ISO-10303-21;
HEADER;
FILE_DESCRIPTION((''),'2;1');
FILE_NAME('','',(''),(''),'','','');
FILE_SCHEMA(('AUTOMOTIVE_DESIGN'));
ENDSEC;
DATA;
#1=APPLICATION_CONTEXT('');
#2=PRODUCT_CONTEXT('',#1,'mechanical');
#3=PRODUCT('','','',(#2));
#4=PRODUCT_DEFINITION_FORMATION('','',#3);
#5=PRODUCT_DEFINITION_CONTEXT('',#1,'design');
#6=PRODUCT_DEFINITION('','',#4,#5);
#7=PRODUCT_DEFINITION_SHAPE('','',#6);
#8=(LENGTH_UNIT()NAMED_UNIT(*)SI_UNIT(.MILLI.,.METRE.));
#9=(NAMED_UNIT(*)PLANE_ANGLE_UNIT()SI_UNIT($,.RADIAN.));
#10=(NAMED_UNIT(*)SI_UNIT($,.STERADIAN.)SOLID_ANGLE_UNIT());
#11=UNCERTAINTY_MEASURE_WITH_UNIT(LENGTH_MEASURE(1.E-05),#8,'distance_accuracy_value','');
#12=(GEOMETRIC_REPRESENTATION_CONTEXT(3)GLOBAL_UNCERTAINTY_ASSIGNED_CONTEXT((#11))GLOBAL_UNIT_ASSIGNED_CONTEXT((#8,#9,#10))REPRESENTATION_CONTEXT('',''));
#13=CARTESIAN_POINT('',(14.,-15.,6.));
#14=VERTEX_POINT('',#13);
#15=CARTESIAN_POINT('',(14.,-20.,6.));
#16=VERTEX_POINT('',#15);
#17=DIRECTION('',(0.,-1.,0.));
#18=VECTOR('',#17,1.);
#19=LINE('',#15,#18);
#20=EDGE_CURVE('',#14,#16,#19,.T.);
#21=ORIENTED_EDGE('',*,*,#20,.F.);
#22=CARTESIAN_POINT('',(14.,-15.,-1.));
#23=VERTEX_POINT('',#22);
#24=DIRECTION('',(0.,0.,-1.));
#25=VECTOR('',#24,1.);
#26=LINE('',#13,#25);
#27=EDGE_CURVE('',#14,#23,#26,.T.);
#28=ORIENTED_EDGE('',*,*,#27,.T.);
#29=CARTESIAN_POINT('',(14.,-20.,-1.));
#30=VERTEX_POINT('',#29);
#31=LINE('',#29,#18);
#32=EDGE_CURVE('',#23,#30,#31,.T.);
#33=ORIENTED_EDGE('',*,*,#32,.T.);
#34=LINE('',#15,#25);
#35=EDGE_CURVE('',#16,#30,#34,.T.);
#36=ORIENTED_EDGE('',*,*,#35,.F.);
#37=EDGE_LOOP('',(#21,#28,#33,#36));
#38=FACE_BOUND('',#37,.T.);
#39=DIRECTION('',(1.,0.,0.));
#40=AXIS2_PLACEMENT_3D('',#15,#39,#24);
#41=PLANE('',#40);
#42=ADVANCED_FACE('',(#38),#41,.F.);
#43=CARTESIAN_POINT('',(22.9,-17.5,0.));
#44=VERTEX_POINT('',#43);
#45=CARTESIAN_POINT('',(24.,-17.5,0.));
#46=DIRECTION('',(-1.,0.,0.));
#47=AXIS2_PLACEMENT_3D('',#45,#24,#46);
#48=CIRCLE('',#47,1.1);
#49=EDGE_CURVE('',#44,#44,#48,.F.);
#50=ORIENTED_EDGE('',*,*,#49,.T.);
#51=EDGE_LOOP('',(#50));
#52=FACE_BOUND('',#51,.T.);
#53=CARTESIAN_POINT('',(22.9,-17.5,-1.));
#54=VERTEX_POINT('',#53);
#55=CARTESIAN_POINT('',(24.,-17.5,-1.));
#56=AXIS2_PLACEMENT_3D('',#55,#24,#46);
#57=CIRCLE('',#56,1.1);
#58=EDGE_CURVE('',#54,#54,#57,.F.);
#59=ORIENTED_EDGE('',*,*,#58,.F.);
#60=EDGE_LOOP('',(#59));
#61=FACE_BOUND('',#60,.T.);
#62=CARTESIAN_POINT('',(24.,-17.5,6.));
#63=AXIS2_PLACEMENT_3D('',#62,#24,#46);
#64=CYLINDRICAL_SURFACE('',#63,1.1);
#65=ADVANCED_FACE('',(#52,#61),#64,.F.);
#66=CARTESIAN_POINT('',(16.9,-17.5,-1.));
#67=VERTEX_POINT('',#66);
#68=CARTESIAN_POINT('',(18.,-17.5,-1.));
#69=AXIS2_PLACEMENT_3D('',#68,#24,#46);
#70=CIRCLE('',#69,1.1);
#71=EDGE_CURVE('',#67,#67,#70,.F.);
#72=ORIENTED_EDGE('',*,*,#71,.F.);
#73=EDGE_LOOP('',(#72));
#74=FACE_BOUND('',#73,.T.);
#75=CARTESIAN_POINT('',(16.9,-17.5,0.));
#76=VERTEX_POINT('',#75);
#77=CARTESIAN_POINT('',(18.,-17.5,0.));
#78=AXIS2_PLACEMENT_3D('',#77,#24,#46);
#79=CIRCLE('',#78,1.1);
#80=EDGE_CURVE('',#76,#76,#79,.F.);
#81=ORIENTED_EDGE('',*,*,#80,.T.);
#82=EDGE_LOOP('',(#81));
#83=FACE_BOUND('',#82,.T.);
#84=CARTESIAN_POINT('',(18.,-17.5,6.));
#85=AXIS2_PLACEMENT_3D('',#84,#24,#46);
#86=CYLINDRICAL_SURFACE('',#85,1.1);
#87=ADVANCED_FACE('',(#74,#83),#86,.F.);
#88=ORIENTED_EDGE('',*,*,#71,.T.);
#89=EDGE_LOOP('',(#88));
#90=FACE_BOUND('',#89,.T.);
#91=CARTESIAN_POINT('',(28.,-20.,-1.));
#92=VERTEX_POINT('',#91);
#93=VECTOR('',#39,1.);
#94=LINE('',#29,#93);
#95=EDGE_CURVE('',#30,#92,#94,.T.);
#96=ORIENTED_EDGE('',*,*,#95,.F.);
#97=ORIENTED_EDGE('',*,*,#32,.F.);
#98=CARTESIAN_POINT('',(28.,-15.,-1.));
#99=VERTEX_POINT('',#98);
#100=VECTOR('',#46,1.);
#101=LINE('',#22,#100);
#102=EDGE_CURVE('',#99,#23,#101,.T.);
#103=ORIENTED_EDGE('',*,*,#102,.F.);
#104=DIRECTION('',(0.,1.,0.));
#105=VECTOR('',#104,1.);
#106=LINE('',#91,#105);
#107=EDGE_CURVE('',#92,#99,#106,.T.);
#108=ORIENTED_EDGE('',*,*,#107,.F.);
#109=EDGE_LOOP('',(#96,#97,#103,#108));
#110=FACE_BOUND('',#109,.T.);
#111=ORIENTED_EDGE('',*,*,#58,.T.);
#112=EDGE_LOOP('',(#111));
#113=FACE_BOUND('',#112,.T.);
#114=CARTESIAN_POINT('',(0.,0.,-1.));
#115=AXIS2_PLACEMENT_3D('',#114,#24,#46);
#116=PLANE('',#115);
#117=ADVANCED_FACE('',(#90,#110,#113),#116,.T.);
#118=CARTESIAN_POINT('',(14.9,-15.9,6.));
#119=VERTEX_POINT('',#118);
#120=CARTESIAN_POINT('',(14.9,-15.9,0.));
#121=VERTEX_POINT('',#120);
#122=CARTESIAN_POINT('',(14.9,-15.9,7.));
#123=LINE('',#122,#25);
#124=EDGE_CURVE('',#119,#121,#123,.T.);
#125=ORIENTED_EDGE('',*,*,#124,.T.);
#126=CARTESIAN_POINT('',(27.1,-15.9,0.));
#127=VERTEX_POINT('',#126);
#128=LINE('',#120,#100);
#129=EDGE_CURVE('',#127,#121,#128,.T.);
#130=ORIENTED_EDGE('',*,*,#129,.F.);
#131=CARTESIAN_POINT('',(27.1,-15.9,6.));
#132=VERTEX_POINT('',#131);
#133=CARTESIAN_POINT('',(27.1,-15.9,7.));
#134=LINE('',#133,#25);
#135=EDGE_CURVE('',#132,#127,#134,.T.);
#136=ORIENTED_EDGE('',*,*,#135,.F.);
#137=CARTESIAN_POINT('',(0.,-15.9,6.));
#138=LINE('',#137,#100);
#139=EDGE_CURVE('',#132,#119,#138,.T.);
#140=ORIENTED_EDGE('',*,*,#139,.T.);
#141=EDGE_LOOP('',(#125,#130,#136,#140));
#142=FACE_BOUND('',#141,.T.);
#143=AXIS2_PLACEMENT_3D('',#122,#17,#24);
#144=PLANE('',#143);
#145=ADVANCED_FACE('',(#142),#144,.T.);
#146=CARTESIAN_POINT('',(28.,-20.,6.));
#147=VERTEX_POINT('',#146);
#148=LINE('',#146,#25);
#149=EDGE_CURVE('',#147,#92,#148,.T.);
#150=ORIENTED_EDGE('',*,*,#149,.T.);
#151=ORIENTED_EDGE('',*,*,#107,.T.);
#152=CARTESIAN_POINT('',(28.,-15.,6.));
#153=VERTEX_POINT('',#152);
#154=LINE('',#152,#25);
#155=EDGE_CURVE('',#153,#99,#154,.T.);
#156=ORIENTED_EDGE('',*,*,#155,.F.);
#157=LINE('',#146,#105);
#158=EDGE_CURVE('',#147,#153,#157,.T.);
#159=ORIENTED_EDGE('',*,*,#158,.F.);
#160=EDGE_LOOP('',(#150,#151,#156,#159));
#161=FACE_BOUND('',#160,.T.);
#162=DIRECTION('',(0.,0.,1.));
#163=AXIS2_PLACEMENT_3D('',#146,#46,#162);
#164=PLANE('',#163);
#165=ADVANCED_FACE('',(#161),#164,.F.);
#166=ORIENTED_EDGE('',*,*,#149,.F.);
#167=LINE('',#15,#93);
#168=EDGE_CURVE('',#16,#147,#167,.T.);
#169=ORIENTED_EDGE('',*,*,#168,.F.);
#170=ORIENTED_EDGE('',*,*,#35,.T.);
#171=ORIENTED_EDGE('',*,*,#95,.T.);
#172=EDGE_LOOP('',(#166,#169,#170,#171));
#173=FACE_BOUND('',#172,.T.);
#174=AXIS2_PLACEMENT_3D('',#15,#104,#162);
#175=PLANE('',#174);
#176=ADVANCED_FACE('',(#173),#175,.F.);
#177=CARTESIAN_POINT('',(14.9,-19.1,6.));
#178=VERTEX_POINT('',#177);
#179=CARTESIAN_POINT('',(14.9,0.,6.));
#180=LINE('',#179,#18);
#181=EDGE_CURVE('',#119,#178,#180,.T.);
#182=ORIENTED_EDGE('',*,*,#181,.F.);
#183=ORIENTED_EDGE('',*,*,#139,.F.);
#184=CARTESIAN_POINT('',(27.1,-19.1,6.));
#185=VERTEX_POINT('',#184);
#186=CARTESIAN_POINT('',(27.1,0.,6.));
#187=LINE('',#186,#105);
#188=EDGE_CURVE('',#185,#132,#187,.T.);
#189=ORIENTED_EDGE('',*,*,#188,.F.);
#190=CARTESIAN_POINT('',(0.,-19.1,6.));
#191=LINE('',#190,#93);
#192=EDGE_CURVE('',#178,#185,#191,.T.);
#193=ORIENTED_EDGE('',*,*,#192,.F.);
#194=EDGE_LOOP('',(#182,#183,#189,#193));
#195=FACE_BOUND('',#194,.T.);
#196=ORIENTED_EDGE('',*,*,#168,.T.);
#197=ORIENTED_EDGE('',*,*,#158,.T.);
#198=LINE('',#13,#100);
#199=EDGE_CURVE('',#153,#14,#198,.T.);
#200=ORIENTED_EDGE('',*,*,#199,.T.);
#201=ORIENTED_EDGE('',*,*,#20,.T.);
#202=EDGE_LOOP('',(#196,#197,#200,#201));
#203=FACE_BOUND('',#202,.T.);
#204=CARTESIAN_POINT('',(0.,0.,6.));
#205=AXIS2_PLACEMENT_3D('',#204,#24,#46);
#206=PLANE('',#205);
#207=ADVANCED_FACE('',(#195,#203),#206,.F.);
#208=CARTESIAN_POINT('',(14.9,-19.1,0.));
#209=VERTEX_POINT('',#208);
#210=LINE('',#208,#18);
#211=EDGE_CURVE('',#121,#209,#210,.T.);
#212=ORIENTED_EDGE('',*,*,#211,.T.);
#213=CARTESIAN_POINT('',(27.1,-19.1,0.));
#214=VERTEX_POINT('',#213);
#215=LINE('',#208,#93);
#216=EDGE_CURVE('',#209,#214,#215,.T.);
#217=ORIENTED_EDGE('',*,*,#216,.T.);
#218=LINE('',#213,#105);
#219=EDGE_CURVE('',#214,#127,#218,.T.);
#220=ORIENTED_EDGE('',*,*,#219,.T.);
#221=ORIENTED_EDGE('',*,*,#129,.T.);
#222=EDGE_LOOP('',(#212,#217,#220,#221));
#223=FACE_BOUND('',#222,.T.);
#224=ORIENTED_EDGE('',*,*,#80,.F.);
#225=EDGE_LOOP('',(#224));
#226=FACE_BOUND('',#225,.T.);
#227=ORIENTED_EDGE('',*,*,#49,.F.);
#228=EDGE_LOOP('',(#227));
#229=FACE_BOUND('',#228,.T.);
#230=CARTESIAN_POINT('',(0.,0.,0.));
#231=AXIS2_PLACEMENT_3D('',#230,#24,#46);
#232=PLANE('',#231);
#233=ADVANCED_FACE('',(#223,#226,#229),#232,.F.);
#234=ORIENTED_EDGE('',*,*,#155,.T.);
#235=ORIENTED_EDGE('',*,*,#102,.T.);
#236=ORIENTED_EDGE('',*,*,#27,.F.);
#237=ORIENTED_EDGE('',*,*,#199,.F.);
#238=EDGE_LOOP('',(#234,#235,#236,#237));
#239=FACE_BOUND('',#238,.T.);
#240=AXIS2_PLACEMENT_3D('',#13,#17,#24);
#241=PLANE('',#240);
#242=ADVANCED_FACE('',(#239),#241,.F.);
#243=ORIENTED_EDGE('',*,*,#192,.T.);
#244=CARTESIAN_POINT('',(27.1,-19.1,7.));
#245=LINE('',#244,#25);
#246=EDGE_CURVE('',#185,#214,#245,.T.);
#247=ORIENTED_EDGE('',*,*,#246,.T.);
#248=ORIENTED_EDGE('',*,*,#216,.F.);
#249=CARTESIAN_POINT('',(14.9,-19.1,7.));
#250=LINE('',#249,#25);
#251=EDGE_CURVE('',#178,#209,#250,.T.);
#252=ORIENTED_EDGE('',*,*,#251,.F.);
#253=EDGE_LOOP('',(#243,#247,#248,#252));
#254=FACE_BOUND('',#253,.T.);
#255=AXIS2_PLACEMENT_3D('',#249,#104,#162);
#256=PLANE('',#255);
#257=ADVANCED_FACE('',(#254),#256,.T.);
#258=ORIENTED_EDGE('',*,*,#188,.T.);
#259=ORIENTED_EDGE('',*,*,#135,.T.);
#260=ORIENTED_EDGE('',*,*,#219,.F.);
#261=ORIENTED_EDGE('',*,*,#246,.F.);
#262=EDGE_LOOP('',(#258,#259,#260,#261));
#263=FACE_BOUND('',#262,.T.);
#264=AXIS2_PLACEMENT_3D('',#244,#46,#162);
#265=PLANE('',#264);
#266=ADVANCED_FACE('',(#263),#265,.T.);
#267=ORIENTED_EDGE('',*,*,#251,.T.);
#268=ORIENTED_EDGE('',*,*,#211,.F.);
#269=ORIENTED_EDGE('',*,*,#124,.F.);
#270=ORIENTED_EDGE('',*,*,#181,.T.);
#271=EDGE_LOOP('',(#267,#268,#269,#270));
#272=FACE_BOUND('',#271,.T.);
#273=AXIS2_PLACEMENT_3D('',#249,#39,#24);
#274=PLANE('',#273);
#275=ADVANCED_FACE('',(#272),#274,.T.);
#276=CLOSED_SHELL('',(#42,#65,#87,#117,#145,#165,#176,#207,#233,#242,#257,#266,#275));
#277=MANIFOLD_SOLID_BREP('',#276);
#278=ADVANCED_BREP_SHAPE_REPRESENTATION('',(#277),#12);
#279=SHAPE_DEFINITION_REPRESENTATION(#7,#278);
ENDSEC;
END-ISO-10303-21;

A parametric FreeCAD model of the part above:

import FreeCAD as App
import Part
import Sketcher

V = App.Vector


def add_polygon(sketch, points):
    """Adds a closed chain of lines whose ends are joined by coincident constraints."""
    first, n = sketch.GeometryCount, len(points)
    for a, b in zip(points, points[1:] + points[:1]):
        sketch.addGeometry(Part.LineSegment(App.Vector(*a, 0), App.Vector(*b, 0)), False)
    for i in range(n):
        sketch.addConstraint(Sketcher.Constraint("Coincident", first + i, 2, first + (i + 1) % n, 1))

doc = App.newDocument("Part")
body = doc.addObject("PartDesign::Body", "Body")

# Sketch on XY plane
sketch1 = body.newObject("Sketcher::SketchObject", "Sketch")
sketch1.AttachmentSupport = (doc.getObject("XY_Plane"), [""])
sketch1.MapMode = "FlatFace"
sketch1.AttachmentOffset = App.Placement(V(0, 0, -1), App.Rotation())
add_polygon(sketch1, [(14, -15), (14, -20), (28, -20), (28, -15)])  # lines 0-3
sketch1.addConstraint(Sketcher.Constraint("Vertical", 0))
sketch1.addConstraint(Sketcher.Constraint("Horizontal", 1))
sketch1.addConstraint(Sketcher.Constraint("Vertical", 2))
sketch1.addConstraint(Sketcher.Constraint("Horizontal", 3))
sketch1.addConstraint(Sketcher.Constraint("DistanceX", 1, 1, 1, 2, 14.0))
sketch1.addConstraint(Sketcher.Constraint("DistanceY", 0, 2, 0, 1, 5.0))
sketch1.addConstraint(Sketcher.Constraint("DistanceX", -1, 1, 0, 2, 14.0))
sketch1.addConstraint(Sketcher.Constraint("DistanceY", 0, 2, -1, 1, 20.0))
pad1 = body.newObject("PartDesign::Pad", "Pad")
pad1.Profile = sketch1
pad1.Length = 7

# Sketch on XY plane
sketch2 = body.newObject("Sketcher::SketchObject", "Sketch001")
sketch2.AttachmentSupport = (doc.getObject("XY_Plane"), [""])
sketch2.MapMode = "FlatFace"
add_polygon(sketch2, [(14.9, -15.9), (14.9, -19.1), (27.1, -19.1), (27.1, -15.9)])  # lines 0-3
sketch2.addConstraint(Sketcher.Constraint("Vertical", 0))
sketch2.addConstraint(Sketcher.Constraint("Horizontal", 1))
sketch2.addConstraint(Sketcher.Constraint("Vertical", 2))
sketch2.addConstraint(Sketcher.Constraint("Horizontal", 3))
sketch2.addConstraint(Sketcher.Constraint("DistanceX", 1, 1, 1, 2, 12.2))
sketch2.addConstraint(Sketcher.Constraint("DistanceY", 0, 2, 0, 1, 3.2))
sketch2.addConstraint(Sketcher.Constraint("DistanceX", -1, 1, 0, 2, 14.9))
sketch2.addConstraint(Sketcher.Constraint("DistanceY", 0, 2, -1, 1, 19.1))
pocket1 = body.newObject("PartDesign::Pocket", "Pocket")
pocket1.Profile = sketch2
pocket1.Length = 7
pocket1.Reversed = True

# Sketch on XY plane
sketch3 = body.newObject("Sketcher::SketchObject", "Sketch002")
sketch3.AttachmentSupport = (doc.getObject("XY_Plane"), [""])
sketch3.MapMode = "FlatFace"
sketch3.AttachmentOffset = App.Placement(V(0, 0, -50), App.Rotation())
sketch3.addGeometry(Part.Circle(V(18, -17.5, 0), V(0, 0, 1), 1.1), False)
sketch3.addGeometry(Part.Circle(V(24, -17.5, 0), V(0, 0, 1), 1.1), False)
sketch3.addConstraint(Sketcher.Constraint("Equal", 0, 1))
sketch3.addConstraint(Sketcher.Constraint("Horizontal", 0, 3, 1, 3))
sketch3.addConstraint(Sketcher.Constraint("Diameter", 0, 2.2))
sketch3.addConstraint(Sketcher.Constraint("DistanceX", -1, 1, 0, 3, 18.0))
sketch3.addConstraint(Sketcher.Constraint("DistanceX", -1, 1, 1, 3, 24.0))
sketch3.addConstraint(Sketcher.Constraint("DistanceY", 0, 3, -1, 1, 17.5))
pocket2 = body.newObject("PartDesign::Pocket", "Pocket001")
pocket2.Profile = sketch3
pocket2.Type = "ThroughAll"
pocket2.Reversed = True

doc.recompute()
